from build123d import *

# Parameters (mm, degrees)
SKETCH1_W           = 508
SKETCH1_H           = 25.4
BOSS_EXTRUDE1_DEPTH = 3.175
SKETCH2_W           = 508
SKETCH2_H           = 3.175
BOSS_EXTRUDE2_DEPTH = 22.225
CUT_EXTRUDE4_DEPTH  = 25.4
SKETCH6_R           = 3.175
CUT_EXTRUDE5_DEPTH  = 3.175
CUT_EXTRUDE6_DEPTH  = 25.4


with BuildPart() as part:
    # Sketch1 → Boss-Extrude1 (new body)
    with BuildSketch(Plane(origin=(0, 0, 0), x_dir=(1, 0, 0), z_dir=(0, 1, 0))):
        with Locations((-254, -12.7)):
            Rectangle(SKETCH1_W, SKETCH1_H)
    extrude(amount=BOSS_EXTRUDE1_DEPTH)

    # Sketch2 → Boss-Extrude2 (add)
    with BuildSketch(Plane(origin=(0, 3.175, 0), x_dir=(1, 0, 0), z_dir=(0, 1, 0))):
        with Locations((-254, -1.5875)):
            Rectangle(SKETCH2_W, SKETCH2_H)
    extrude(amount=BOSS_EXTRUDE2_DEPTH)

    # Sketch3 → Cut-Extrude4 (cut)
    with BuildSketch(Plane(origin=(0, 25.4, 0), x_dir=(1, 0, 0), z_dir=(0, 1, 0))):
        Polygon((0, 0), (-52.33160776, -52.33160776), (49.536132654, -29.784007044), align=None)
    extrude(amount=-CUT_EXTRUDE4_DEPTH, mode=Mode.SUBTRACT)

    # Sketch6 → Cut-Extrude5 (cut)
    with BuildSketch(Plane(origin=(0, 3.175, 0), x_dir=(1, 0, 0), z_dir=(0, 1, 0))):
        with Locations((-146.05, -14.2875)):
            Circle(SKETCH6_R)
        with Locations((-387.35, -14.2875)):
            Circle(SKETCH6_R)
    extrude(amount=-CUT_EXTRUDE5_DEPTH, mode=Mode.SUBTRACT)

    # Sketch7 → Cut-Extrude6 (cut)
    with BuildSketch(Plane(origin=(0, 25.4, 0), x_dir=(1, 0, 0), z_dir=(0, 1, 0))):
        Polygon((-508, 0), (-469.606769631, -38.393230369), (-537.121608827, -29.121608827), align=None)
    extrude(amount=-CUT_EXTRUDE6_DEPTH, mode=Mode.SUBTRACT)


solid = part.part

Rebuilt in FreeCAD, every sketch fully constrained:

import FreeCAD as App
import Part
import Sketcher

V = App.Vector
Q = App.Units.Quantity


def add_polygon(sketch, points):
    """Adds a closed chain of lines whose ends are joined by coincident constraints."""
    first, n = sketch.GeometryCount, len(points)
    for a, b in zip(points, points[1:] + points[:1]):
        sketch.addGeometry(Part.LineSegment(App.Vector(*a, 0), App.Vector(*b, 0)), False)
    for i in range(n):
        sketch.addConstraint(Sketcher.Constraint("Coincident", first + i, 2, first + (i + 1) % n, 1))

doc = App.newDocument("Part")
body = doc.addObject("PartDesign::Body", "Body")

# Sketch on XZ plane
sketch1 = doc.addObject("Sketcher::SketchObject", "Sketch")
body.addObject(sketch1)
sketch1.AttachmentSupport = (doc.XZ_Plane, [""])
sketch1.MapMode = "FlatFace"
add_polygon(sketch1, [(-508, 0), (-508, 25), (0, 25), (0, 0)])  # lines 0-3
sketch1.addConstraint([
    Sketcher.Constraint("Vertical", 0),
    Sketcher.Constraint("Horizontal", 1),
    Sketcher.Constraint("Vertical", 2),
    Sketcher.Constraint("Horizontal", 3),
    Sketcher.Constraint("Coincident", 2, 2, -1, 1),
    Sketcher.Constraint("DistanceX", 1, 1, 1, 2, Q("20 in")),
    Sketcher.Constraint("DistanceY", 0, 1, 0, 2, Q("1 in")),
])
pad1 = doc.addObject("PartDesign::Pad", "Pad")
body.addObject(pad1)
pad1.Profile = sketch1
pad1.Length = Q("0.125 in")
pad1.Reversed = True

# Sketch on XZ plane
sketch2 = doc.addObject("Sketcher::SketchObject", "Sketch001")
body.addObject(sketch2)
sketch2.AttachmentSupport = (doc.XZ_Plane, [""])
sketch2.MapMode = "FlatFace"
sketch2.AttachmentOffset = App.Placement(V(0, 0, -0.125 * 25.4), App.Rotation())
add_polygon(sketch2, [(-508, 0), (-508, 3.2), (0, 3.2), (0, 0)])  # lines 0-3
sketch2.addConstraint([
    Sketcher.Constraint("Vertical", 0),
    Sketcher.Constraint("Horizontal", 1),
    Sketcher.Constraint("Vertical", 2),
    Sketcher.Constraint("Horizontal", 3),
    Sketcher.Constraint("Coincident", 2, 2, -1, 1),
    Sketcher.Constraint("DistanceX", 1, 1, 1, 2, Q("20 in")),
    Sketcher.Constraint("DistanceY", 0, 1, 0, 2, Q("0.125 in")),
])
pad2 = doc.addObject("PartDesign::Pad", "Pad001")
body.addObject(pad2)
pad2.Profile = sketch2
pad2.Length = Q("0.875 in")
pad2.Reversed = True

# Sketch on XZ plane
sketch3 = doc.addObject("Sketcher::SketchObject", "Sketch002")
body.addObject(sketch3)
sketch3.AttachmentSupport = (doc.XZ_Plane, [""])
sketch3.MapMode = "FlatFace"
sketch3.AttachmentOffset = App.Placement(V(0, 0, -1 * 25.4), App.Rotation())
add_polygon(sketch3, [(0, 0), (-52, 52), (50, 30)])  # lines 0-2
sketch3.addConstraint([
    Sketcher.Constraint("Coincident", 2, 2, -1, 1),
    Sketcher.Constraint("Angle", 0, Q("135 deg")),
    Sketcher.Constraint("DistanceY", 1, 2, 0, 2, Q("22.547601 mm")),
    Sketcher.Constraint("Distance", 0, Q("74.008069 mm")),
    Sketcher.Constraint("Distance", 1, Q("104.333268 mm")),
])
pocket1 = doc.addObject("PartDesign::Pocket", "Pocket")
body.addObject(pocket1)
pocket1.Profile = sketch3
pocket1.Length = Q("1 in")
pocket1.Reversed = True

# Sketch on XZ plane
sketch4 = doc.addObject("Sketcher::SketchObject", "Sketch003")
body.addObject(sketch4)
sketch4.AttachmentSupport = (doc.XZ_Plane, [""])
sketch4.MapMode = "FlatFace"
sketch4.AttachmentOffset = App.Placement(V(0, 0, -0.125 * 25.4), App.Rotation())
sketch4.addGeometry([
    Part.Circle(V(-146.1, 14.3, 0), V(0, 0, 1), 3.2),
    Part.Circle(V(-387.4, 14.3, 0), V(0, 0, 1), 3.2),
], False)
sketch4.addConstraint([
    Sketcher.Constraint("Equal", 0, 1),
    Sketcher.Constraint("Horizontal", 0, 3, 1, 3),
    Sketcher.Constraint("Diameter", 0, Q("0.25 in")),
    Sketcher.Constraint("DistanceX", 1, 3, 0, 3, Q("9.5 in")),
    Sketcher.Constraint("DistanceX", 0, 3, -1, 1, Q("5.75 in")),
    Sketcher.Constraint("DistanceY", -1, 1, 0, 3, Q("0.5625 in")),
])
pocket2 = doc.addObject("PartDesign::Pocket", "Pocket001")
body.addObject(pocket2)
pocket2.Profile = sketch4
pocket2.Length = Q("0.125 in")
pocket2.Reversed = True

# Sketch on XZ plane
sketch5 = doc.addObject("Sketcher::SketchObject", "Sketch004")
body.addObject(sketch5)
sketch5.AttachmentSupport = (doc.XZ_Plane, [""])
sketch5.MapMode = "FlatFace"
sketch5.AttachmentOffset = App.Placement(V(0, 0, -1 * 25.4), App.Rotation())
add_polygon(sketch5, [(-470, 38), (-508, 0), (-537, 29)])  # lines 0-2
sketch5.addConstraint([
    Sketcher.Constraint("PointOnObject", 0, 2, -1),
    Sketcher.Constraint("Perpendicular", 0, 1),
    Sketcher.Constraint("DistanceX", 0, 2, -1, 1, Q("20 in")),
    Sketcher.Constraint("Angle", 0, Q("-135 deg")),
    Sketcher.Constraint("Distance", 2, Q("68.148488 mm")),
    Sketcher.Constraint("DistanceX", 1, 2, -1, 1, Q("537.121609 mm")),
])
pocket3 = doc.addObject("PartDesign::Pocket", "Pocket002")
body.addObject(pocket3)
pocket3.Profile = sketch5
pocket3.Length = Q("1 in")
pocket3.Reversed = True

doc.recompute()
